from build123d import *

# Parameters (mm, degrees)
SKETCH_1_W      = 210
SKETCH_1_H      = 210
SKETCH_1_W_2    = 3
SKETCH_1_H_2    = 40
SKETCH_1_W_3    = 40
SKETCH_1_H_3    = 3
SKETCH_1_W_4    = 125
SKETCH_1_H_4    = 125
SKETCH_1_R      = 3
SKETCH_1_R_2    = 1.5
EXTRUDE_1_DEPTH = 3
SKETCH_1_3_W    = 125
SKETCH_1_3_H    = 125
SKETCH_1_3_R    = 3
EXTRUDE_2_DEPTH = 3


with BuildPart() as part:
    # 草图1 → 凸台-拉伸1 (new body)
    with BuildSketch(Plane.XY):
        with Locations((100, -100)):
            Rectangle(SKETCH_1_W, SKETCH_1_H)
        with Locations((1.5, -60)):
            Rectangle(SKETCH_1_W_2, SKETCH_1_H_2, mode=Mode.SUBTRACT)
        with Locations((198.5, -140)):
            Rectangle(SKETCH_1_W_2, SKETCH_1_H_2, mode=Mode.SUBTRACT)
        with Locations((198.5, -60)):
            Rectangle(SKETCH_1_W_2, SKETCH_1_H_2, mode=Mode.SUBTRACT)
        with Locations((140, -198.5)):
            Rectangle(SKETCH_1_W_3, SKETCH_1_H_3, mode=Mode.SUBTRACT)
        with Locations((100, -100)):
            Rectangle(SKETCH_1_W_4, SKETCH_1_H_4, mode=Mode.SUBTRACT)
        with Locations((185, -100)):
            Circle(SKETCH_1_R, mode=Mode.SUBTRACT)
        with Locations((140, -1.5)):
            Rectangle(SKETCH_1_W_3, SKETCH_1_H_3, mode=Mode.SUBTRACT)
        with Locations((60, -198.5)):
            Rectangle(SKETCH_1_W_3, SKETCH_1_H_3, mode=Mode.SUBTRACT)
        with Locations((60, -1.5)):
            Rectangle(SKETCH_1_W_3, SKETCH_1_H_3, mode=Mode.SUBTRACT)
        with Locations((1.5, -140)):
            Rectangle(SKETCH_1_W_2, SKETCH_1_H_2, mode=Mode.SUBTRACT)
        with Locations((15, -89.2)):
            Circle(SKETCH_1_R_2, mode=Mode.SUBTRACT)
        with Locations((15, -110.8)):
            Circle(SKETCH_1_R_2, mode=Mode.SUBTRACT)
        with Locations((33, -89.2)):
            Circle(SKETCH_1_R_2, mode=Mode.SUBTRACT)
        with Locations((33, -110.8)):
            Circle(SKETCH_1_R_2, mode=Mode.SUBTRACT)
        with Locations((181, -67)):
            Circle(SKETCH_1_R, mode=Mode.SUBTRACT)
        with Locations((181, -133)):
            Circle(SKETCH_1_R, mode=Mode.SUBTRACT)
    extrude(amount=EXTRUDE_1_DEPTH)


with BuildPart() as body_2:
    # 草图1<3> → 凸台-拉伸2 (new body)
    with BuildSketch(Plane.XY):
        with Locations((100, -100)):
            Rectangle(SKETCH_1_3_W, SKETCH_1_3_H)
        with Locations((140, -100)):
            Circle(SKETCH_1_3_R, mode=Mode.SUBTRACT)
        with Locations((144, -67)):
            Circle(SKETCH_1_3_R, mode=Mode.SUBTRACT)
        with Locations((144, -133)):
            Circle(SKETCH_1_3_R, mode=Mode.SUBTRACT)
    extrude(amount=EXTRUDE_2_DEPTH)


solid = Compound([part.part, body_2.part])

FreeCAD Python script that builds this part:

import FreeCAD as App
import Part
import Sketcher


def add_polygon(sketch, points):
    """Adds a closed chain of lines whose ends are joined by coincident constraints."""
    first, n = sketch.GeometryCount, len(points)
    for a, b in zip(points, points[1:] + points[:1]):
        sketch.addGeometry(Part.LineSegment(App.Vector(*a, 0), App.Vector(*b, 0)), False)
    for i in range(n):
        sketch.addConstraint(Sketcher.Constraint("Coincident", first + i, 2, first + (i + 1) % n, 1))

doc = App.newDocument("Part")
params = doc.addObject("Spreadsheet::Sheet", "Params")
for row, (alias, value) in enumerate([
    ("sketch1_diameter", "3 mm"),
    ("sketch1_diameter2", "6 mm"),
    ("sketch1_width", "210 mm"),
    ("sketch1_width2", "40 mm"),
    ("sketch1_width3", "3 mm"),
    ("pad1_length", "3 mm"),
    ("sketch2_diameter", "6 mm"),
    ("sketch2_width", "125 mm"),
    ("pad2_length", "3 mm"),
], start=1):
    params.set(f"A{row}", alias)
    params.set(f"B{row}", "=" + value)
    params.setAlias(f"B{row}", alias)

body = doc.addObject("PartDesign::Body", "Body")

# Sketch on XY plane
sketch1 = body.newObject("Sketcher::SketchObject", "Sketch")
sketch1.AttachmentSupport = (doc.getObject("XY_Plane"), [""])
sketch1.MapMode = "FlatFace"
add_polygon(sketch1, [(-5, 5), (-5, -205), (205, -205), (205, 5)])  # lines 0-3
add_polygon(sketch1, [(80, -200), (40, -200), (40, -197), (80, -197)])  # lines 4-7
add_polygon(sketch1, [(3, -160), (0, -160), (0, -120), (3, -120)])  # lines 8-11
sketch1.addGeometry(Part.Circle(App.Vector(15, -110.8, 0), App.Vector(0, 0, 1), 1.5), False)  # 12
sketch1.addGeometry(Part.Circle(App.Vector(33, -110.8, 0), App.Vector(0, 0, 1), 1.5), False)  # 13
add_polygon(sketch1, [(160, -200), (120, -200), (120, -197), (160, -197)])  # lines 14-17
add_polygon(sketch1, [(200, -160), (197, -160), (197, -120), (200, -120)])  # lines 18-21
sketch1.addGeometry(Part.Circle(App.Vector(181, -133, 0), App.Vector(0, 0, 1), 3), False)  # 22
sketch1.addGeometry(Part.Circle(App.Vector(15, -89.2, 0), App.Vector(0, 0, 1), 1.5), False)  # 23
sketch1.addGeometry(Part.Circle(App.Vector(33, -89.2, 0), App.Vector(0, 0, 1), 1.5), False)  # 24
add_polygon(sketch1, [(3, -80), (0, -80), (0, -40), (3, -40)])  # lines 25-28
add_polygon(sketch1, [(80, -3), (40, -3), (40, 0), (80, 0)])  # lines 29-32
add_polygon(sketch1, [(162.5, -162.5), (37.5, -162.5), (37.5, -37.5), (162.5, -37.5)])  # lines 33-36
sketch1.addGeometry(Part.Circle(App.Vector(185, -100, 0), App.Vector(0, 0, 1), 3), False)  # 37
sketch1.addGeometry(Part.Circle(App.Vector(181, -67, 0), App.Vector(0, 0, 1), 3), False)  # 38
add_polygon(sketch1, [(200, -80), (197, -80), (197, -40), (200, -40)])  # lines 39-42
add_polygon(sketch1, [(160, -3), (120, -3), (120, 0), (160, 0)])  # lines 43-46
sketch1.addConstraint([
    Sketcher.Constraint("Vertical", 0),
    Sketcher.Constraint("Horizontal", 1),
    Sketcher.Constraint("Vertical", 2),
    Sketcher.Constraint("Horizontal", 3),
    Sketcher.Constraint("Horizontal", 4),
    Sketcher.Constraint("Vertical", 5),
    Sketcher.Constraint("Horizontal", 6),
    Sketcher.Constraint("Vertical", 7),
    Sketcher.Constraint("Horizontal", 8),
    Sketcher.Constraint("Vertical", 9),
    Sketcher.Constraint("Horizontal", 10),
    Sketcher.Constraint("Vertical", 11),
    Sketcher.Constraint("Horizontal", 14),
    Sketcher.Constraint("Vertical", 15),
    Sketcher.Constraint("Horizontal", 16),
    Sketcher.Constraint("Vertical", 17),
    Sketcher.Constraint("Horizontal", 18),
    Sketcher.Constraint("Vertical", 19),
    Sketcher.Constraint("Horizontal", 20),
    Sketcher.Constraint("Vertical", 21),
    Sketcher.Constraint("Horizontal", 25),
    Sketcher.Constraint("Vertical", 26),
    Sketcher.Constraint("Horizontal", 27),
    Sketcher.Constraint("Vertical", 28),
    Sketcher.Constraint("Horizontal", 29),
    Sketcher.Constraint("Vertical", 30),
    Sketcher.Constraint("Horizontal", 31),
    Sketcher.Constraint("Vertical", 32),
    Sketcher.Constraint("Horizontal", 33),
    Sketcher.Constraint("Vertical", 34),
    Sketcher.Constraint("Horizontal", 35),
    Sketcher.Constraint("Vertical", 36),
    Sketcher.Constraint("Horizontal", 39),
    Sketcher.Constraint("Vertical", 40),
    Sketcher.Constraint("Horizontal", 41),
    Sketcher.Constraint("Vertical", 42),
    Sketcher.Constraint("Horizontal", 43),
    Sketcher.Constraint("Vertical", 44),
    Sketcher.Constraint("Horizontal", 45),
    Sketcher.Constraint("Vertical", 46),
    Sketcher.Constraint("Equal", 12, 13),
    Sketcher.Constraint("Equal", 13, 23),
    Sketcher.Constraint("Equal", 23, 24),
    Sketcher.Constraint("Equal", 22, 37),
    Sketcher.Constraint("Equal", 37, 38),
    Sketcher.Constraint("PointOnObject", 8, 2, -2),
    Sketcher.Constraint("PointOnObject", 25, 2, -2),
    Sketcher.Constraint("PointOnObject", 30, 2, -1),
    Sketcher.Constraint("PointOnObject", 44, 2, -1),
    Sketcher.Constraint("Horizontal", 12, 3, 13, 3),
    Sketcher.Constraint("Horizontal", 23, 3, 24, 3),
    Sketcher.Constraint("Horizontal", 7, 2, 14, 2),
    Sketcher.Constraint("Horizontal", 6, 2, 15, 2),
    Sketcher.Constraint("Horizontal", 11, 2, 18, 2),
    Sketcher.Constraint("Horizontal", 10, 2, 19, 2),
    Sketcher.Constraint("Horizontal", 28, 2, 39, 2),
    Sketcher.Constraint("Horizontal", 27, 2, 40, 2),
    Sketcher.Constraint("Horizontal", 32, 2, 43, 2),
    Sketcher.Constraint("Vertical", 12, 3, 23, 3),
    Sketcher.Constraint("Vertical", 13, 3, 24, 3),
    Sketcher.Constraint("Vertical", 22, 3, 38, 3),
    Sketcher.Constraint("Vertical", 11, 2, 27, 2),
    Sketcher.Constraint("Vertical", 5, 2, 29, 2),
    Sketcher.Constraint("Vertical", 7, 2, 31, 2),
    Sketcher.Constraint("Vertical", 19, 2, 39, 2),
    Sketcher.Constraint("Vertical", 21, 2, 41, 2),
    Sketcher.Constraint("Vertical", 15, 2, 43, 2),
    Sketcher.Constraint("Vertical", 17, 2, 45, 2),
    Sketcher.Constraint("Equal", 6, 14),
    Sketcher.Constraint("Equal", 10, 18),
    Sketcher.Constraint("Equal", 3, 0),
    Sketcher.Constraint("Equal", 41, 5),
    Sketcher.Constraint("Equal", 45, 9),
    Sketcher.Constraint("Equal", 21, 26),
    Sketcher.Constraint("Equal", 17, 30),
    Sketcher.Constraint("Equal", 35, 34),
    Sketcher.Constraint("Diameter", 12, 3.0),
    Sketcher.Constraint("Diameter", 22, 6.0),
    Sketcher.Constraint("DistanceX", 1, 1, 1, 2, 210.0),
    Sketcher.Constraint("DistanceX", 4, 2, 4, 1, 40.0),
    Sketcher.Constraint("DistanceX", 8, 2, 8, 1, 3.0),
    Sketcher.Constraint("DistanceX", 33, 2, 33, 1, 125.0),
    Sketcher.Constraint("DistanceX", -1, 1, 12, 3, 15.0),
    Sketcher.Constraint("DistanceX", -1, 1, 13, 3, 33.0),
    Sketcher.Constraint("DistanceX", -1, 1, 22, 3, 181.0),
    Sketcher.Constraint("DistanceY", 22, 3, -1, 1, 133.0),
    Sketcher.Constraint("DistanceX", -1, 1, 37, 3, 185.0),
    Sketcher.Constraint("DistanceY", 37, 3, -1, 1, 100.0),
    Sketcher.Constraint("DistanceY", 38, 3, -1, 1, 67.0),
    Sketcher.Constraint("DistanceX", 0, 2, -1, 1, 5.0),
    Sketcher.Constraint("DistanceY", 0, 2, -1, 1, 205.0),
    Sketcher.Constraint("DistanceX", -1, 1, 4, 2, 40.0),
    Sketcher.Constraint("DistanceY", 4, 2, -1, 1, 200.0),
    Sketcher.Constraint("DistanceY", 8, 2, -1, 1, 160.0),
    Sketcher.Constraint("DistanceX", -1, 1, 14, 2, 120.0),
    Sketcher.Constraint("DistanceX", -1, 1, 18, 2, 197.0),
    Sketcher.Constraint("DistanceY", 25, 2, -1, 1, 80.0),
    Sketcher.Constraint("DistanceY", 12, 3, -1, 1, 110.8),
    Sketcher.Constraint("DistanceY", 23, 3, -1, 1, 89.2),
    Sketcher.Constraint("DistanceX", -1, 1, 33, 2, 37.5),
    Sketcher.Constraint("DistanceY", 33, 2, -1, 1, 162.5),
])
sketch1.setExpression("Constraints[116]", "Params.sketch1_diameter")
sketch1.setExpression("Constraints[117]", "Params.sketch1_diameter2")
sketch1.setExpression("Constraints[118]", "Params.sketch1_width")
sketch1.setExpression("Constraints[119]", "Params.sketch1_width2")
sketch1.setExpression("Constraints[120]", "Params.sketch1_width3")
pad1 = body.newObject("PartDesign::Pad", "Pad")
pad1.Profile = sketch1
pad1.setExpression("Length", "Params.pad1_length")
body2 = doc.addObject("PartDesign::Body", "Body001")

# Sketch on XY plane
sketch2 = body2.newObject("Sketcher::SketchObject", "Sketch001")
sketch2.AttachmentSupport = (doc.getObject("XY_Plane001"), [""])
sketch2.MapMode = "FlatFace"
add_polygon(sketch2, [(37.5, -37.5), (37.5, -162.5), (162.5, -162.5), (162.5, -37.5)])  # lines 0-3
sketch2.addGeometry(Part.Circle(App.Vector(144, -133, 0), App.Vector(0, 0, 1), 3), False)  # 4
sketch2.addGeometry(Part.Circle(App.Vector(140, -100, 0), App.Vector(0, 0, 1), 3), False)  # 5
sketch2.addGeometry(Part.Circle(App.Vector(144, -67, 0), App.Vector(0, 0, 1), 3), False)  # 6
sketch2.addConstraint([
    Sketcher.Constraint("Vertical", 0),
    Sketcher.Constraint("Horizontal", 1),
    Sketcher.Constraint("Vertical", 2),
    Sketcher.Constraint("Horizontal", 3),
    Sketcher.Constraint("Equal", 4, 5),
    Sketcher.Constraint("Equal", 5, 6),
    Sketcher.Constraint("Vertical", 4, 3, 6, 3),
    Sketcher.Constraint("Equal", 3, 0),
    Sketcher.Constraint("Diameter", 4, 6.0),
    Sketcher.Constraint("DistanceX", 1, 1, 1, 2, 125.0),
    Sketcher.Constraint("DistanceX", -1, 1, 4, 3, 144.0),
    Sketcher.Constraint("DistanceY", 4, 3, -1, 1, 133.0),
    Sketcher.Constraint("DistanceX", -1, 1, 5, 3, 140.0),
    Sketcher.Constraint("DistanceY", 5, 3, -1, 1, 100.0),
    Sketcher.Constraint("DistanceY", 6, 3, -1, 1, 67.0),
    Sketcher.Constraint("DistanceX", -1, 1, 0, 2, 37.5),
    Sketcher.Constraint("DistanceY", 0, 2, -1, 1, 162.5),
])
sketch2.setExpression("Constraints[12]", "Params.sketch2_diameter")
sketch2.setExpression("Constraints[13]", "Params.sketch2_width")
pad2 = body2.newObject("PartDesign::Pad", "Pad001")
pad2.Profile = sketch2
pad2.setExpression("Length", "Params.pad2_length")

doc.recompute()
